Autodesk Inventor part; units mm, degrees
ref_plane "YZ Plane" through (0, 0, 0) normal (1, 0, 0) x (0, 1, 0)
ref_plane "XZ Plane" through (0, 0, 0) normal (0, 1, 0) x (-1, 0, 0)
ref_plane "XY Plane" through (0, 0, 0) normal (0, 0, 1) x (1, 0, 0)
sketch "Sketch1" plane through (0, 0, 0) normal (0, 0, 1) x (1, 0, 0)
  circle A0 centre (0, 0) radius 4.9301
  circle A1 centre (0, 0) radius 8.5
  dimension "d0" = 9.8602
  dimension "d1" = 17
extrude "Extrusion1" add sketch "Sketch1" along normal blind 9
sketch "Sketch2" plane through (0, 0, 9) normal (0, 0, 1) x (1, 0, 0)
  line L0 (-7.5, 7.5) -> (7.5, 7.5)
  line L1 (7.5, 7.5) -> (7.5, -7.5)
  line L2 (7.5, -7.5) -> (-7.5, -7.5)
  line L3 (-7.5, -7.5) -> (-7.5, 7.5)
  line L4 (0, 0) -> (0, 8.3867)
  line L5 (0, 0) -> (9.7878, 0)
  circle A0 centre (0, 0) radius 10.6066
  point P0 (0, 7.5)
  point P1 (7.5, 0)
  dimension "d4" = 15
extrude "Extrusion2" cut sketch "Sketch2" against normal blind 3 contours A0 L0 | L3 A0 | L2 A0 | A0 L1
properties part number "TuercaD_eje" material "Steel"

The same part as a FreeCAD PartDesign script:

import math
import FreeCAD as App
import Part
import Sketcher

doc = App.newDocument("Part")
body = doc.addObject("PartDesign::Body", "Body")

# Sketch on XY plane
sketch1 = body.newObject("Sketcher::SketchObject", "Sketch")
sketch1.AttachmentSupport = (doc.getObject("XY_Plane"), [""])
sketch1.MapMode = "FlatFace"
sketch1.addGeometry(Part.Circle(App.Vector(0, 0, 0), App.Vector(0, 0, 1), 8.5), False)
sketch1.addGeometry(Part.Circle(App.Vector(0, 0, 0), App.Vector(0, 0, 1), 4.9), False)
sketch1.addConstraint(Sketcher.Constraint("Coincident", 0, 3, -1, 1))
sketch1.addConstraint(Sketcher.Constraint("Coincident", 1, 3, -1, 1))
sketch1.addConstraint(Sketcher.Constraint("Diameter", 0, 17.0))
sketch1.addConstraint(Sketcher.Constraint("Diameter", 1, 9.8602))
pad1 = body.newObject("PartDesign::Pad", "Pad")
pad1.Profile = sketch1
pad1.Length = 9

# Sketch on XY plane
sketch2 = body.newObject("Sketcher::SketchObject", "Sketch001")
sketch2.AttachmentSupport = (doc.getObject("XY_Plane"), [""])
sketch2.MapMode = "FlatFace"
sketch2.AttachmentOffset = App.Placement(App.Vector(0, 0, 9), App.Rotation())
sketch2.addGeometry(Part.ArcOfCircle(Part.Circle(App.Vector(0, 0, 0), App.Vector(0, 0, 1), 11), math.radians(45), math.radians(135)), False)
sketch2.addGeometry(Part.LineSegment(App.Vector(8, 8, 0), App.Vector(-8, 8, 0)), False)
sketch2.addGeometry(Part.LineSegment(App.Vector(-8, -8, 0), App.Vector(-8, 8, 0)), False)
sketch2.addGeometry(Part.ArcOfCircle(Part.Circle(App.Vector(0, 0, 0), App.Vector(0, 0, 1), 11), math.radians(135), math.radians(225)), False)
sketch2.addGeometry(Part.LineSegment(App.Vector(8, -8, 0), App.Vector(-8, -8, 0)), False)
sketch2.addGeometry(Part.ArcOfCircle(Part.Circle(App.Vector(0, 0, 0), App.Vector(0, 0, 1), 11), math.radians(-135), math.radians(-45)), False)
sketch2.addGeometry(Part.ArcOfCircle(Part.Circle(App.Vector(0, 0, 0), App.Vector(0, 0, 1), 11), math.radians(-45), math.radians(45)), False)
sketch2.addGeometry(Part.LineSegment(App.Vector(8, -8, 0), App.Vector(8, 8, 0)), False)
sketch2.addConstraint(Sketcher.Constraint("Coincident", 0, 1, 1, 1))
sketch2.addConstraint(Sketcher.Constraint("Coincident", 1, 2, 0, 2))
sketch2.addConstraint(Sketcher.Constraint("Coincident", 2, 1, 3, 2))
sketch2.addConstraint(Sketcher.Constraint("Coincident", 3, 1, 2, 2))
sketch2.addConstraint(Sketcher.Constraint("Coincident", 4, 1, 5, 2))
sketch2.addConstraint(Sketcher.Constraint("Coincident", 5, 1, 4, 2))
sketch2.addConstraint(Sketcher.Constraint("Coincident", 6, 1, 7, 1))
sketch2.addConstraint(Sketcher.Constraint("Coincident", 7, 2, 6, 2))
sketch2.addConstraint(Sketcher.Constraint("Horizontal", 1))
sketch2.addConstraint(Sketcher.Constraint("Vertical", 2))
sketch2.addConstraint(Sketcher.Constraint("Horizontal", 4))
sketch2.addConstraint(Sketcher.Constraint("Vertical", 7))
sketch2.addConstraint(Sketcher.Constraint("Coincident", 0, 3, -1, 1))
sketch2.addConstraint(Sketcher.Constraint("Coincident", 3, 3, -1, 1))
sketch2.addConstraint(Sketcher.Constraint("Coincident", 5, 3, -1, 1))
sketch2.addConstraint(Sketcher.Constraint("Coincident", 6, 3, -1, 1))
sketch2.addConstraint(Sketcher.Constraint("Coincident", 3, 1, 1, 2))
sketch2.addConstraint(Sketcher.Constraint("Coincident", 5, 1, 2, 1))
sketch2.addConstraint(Sketcher.Constraint("Coincident", 6, 1, 4, 1))
sketch2.addConstraint(Sketcher.Constraint("Equal", 4, 2))
sketch2.addConstraint(Sketcher.Constraint("DistanceX", 1, 2, 1, 1, 15.0))
pocket1 = body.newObject("PartDesign::Pocket", "Pocket")
pocket1.Profile = sketch2
pocket1.Length = 3

doc.recompute()
